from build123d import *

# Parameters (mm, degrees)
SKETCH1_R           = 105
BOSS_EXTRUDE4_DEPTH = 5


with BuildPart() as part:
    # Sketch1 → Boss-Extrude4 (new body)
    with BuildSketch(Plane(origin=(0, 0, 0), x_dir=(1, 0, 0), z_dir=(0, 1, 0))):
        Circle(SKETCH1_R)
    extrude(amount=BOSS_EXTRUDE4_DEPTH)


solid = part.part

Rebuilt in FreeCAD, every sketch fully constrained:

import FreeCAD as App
import Part
import Sketcher
from FreeCAD import Vector

doc = App.newDocument("Part")
body = doc.addObject("PartDesign::Body", "Body")

# Sketch on XZ plane
sketch1 = doc.addObject("Sketcher::SketchObject", "Sketch")
body.addObject(sketch1)
sketch1.AttachmentSupport = (doc.XZ_Plane, [""])
sketch1.MapMode = "FlatFace"
sketch1.addGeometry(Part.Circle(Vector(0, 0, 0), Vector(0, 0, 1), 105), False)
sketch1.addConstraint([
    Sketcher.Constraint("Coincident", 0, 3, -1, 1),
    Sketcher.Constraint("Diameter", 0, 210.0),
])
pad1 = doc.addObject("PartDesign::Pad", "Pad")
body.addObject(pad1)
pad1.Profile = sketch1
pad1.Length = 5
pad1.Reversed = True

doc.recompute()
